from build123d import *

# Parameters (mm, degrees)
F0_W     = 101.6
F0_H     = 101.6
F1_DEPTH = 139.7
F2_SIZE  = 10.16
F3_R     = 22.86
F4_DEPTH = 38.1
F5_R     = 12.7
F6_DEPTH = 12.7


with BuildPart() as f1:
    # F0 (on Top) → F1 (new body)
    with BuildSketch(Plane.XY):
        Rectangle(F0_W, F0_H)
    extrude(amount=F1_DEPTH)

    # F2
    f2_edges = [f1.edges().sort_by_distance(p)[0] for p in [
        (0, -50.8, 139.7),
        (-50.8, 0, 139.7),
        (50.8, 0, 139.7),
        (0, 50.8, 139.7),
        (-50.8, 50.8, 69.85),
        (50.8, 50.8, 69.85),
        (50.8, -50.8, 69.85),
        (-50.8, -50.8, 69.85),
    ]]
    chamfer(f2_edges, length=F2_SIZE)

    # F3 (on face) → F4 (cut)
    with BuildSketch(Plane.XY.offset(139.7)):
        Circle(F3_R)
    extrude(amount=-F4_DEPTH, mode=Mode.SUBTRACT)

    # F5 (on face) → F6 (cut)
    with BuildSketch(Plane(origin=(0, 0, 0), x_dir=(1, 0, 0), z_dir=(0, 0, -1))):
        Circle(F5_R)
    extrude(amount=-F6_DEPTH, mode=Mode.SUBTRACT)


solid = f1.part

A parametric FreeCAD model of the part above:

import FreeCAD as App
import Part
import Sketcher
from FreeCAD import Vector
Q = App.Units.Quantity


def edges_at(feature, points):
    """Names of the edges that pass closest to the given points."""
    edges = feature.Shape.Edges
    near = lambda p: min(range(len(edges)), key=lambda i: edges[i].distToShape(Part.Vertex(*p))[0])
    return sorted({f"Edge{near(p) + 1}" for p in points})


def add_polygon(sketch, points):
    """Adds a closed chain of lines whose ends are joined by coincident constraints."""
    first, n = sketch.GeometryCount, len(points)
    for a, b in zip(points, points[1:] + points[:1]):
        sketch.addGeometry(Part.LineSegment(App.Vector(*a, 0), App.Vector(*b, 0)), False)
    for i in range(n):
        sketch.addConstraint(Sketcher.Constraint("Coincident", first + i, 2, first + (i + 1) % n, 1))

doc = App.newDocument("Part")
body = doc.addObject("PartDesign::Body", "Body")

sketch1 = body.newObject("Sketcher::SketchObject", "Sketch")
sketch1.AttachmentSupport = (doc.getObject("XY_Plane"), [""])
sketch1.MapMode = "FlatFace"
add_polygon(sketch1, [(-51, 51), (-51, -51), (51, -51), (51, 51)])
sketch1.addConstraint(Sketcher.Constraint("Vertical", 0))
sketch1.addConstraint(Sketcher.Constraint("Horizontal", 1))
sketch1.addConstraint(Sketcher.Constraint("Vertical", 2))
sketch1.addConstraint(Sketcher.Constraint("Horizontal", 3))
sketch1.addConstraint(Sketcher.Constraint("Symmetric", 0, 2, 2, 2, -1, 1))
sketch1.addConstraint(Sketcher.Constraint("Equal", 3, 0))
sketch1.addConstraint(Sketcher.Constraint("DistanceX", 1, 1, 1, 2, Q("4 in")))
pad1 = body.newObject("PartDesign::Pad", "Pad")
pad1.Profile = sketch1
pad1.Length = Q("5.5 in")
doc.recompute()

chamfer = body.newObject("PartDesign::Chamfer", "Chamfer")
chamfer.Base = (pad1, edges_at(pad1, [
    (0, -50.8, 139.7),
    (-50.8, 0, 139.7),
    (50.8, 0, 139.7),
    (0, 50.8, 139.7),
    (-50.8, 50.8, 69.85),
    (50.8, 50.8, 69.85),
    (50.8, -50.8, 69.85),
    (-50.8, -50.8, 69.85),
]))
chamfer.Size = Q("0.4 in")

sketch2 = body.newObject("Sketcher::SketchObject", "Sketch001")
sketch2.AttachmentSupport = (doc.getObject("XY_Plane"), [""])
sketch2.MapMode = "FlatFace"
sketch2.AttachmentOffset = App.Placement(Vector(0, 0, 5.5 * 25.4), App.Rotation())
sketch2.addGeometry(Part.Circle(Vector(0, 0, 0), Vector(0, 0, 1), 23), False)
sketch2.addConstraint(Sketcher.Constraint("Coincident", 0, 3, -1, 1))
sketch2.addConstraint(Sketcher.Constraint("Diameter", 0, Q("1.8 in")))
pocket1 = body.newObject("PartDesign::Pocket", "Pocket")
pocket1.Profile = sketch2
pocket1.Length = Q("1.5 in")

sketch3 = body.newObject("Sketcher::SketchObject", "Sketch002")
sketch3.AttachmentSupport = (doc.getObject("XY_Plane"), [""])
sketch3.MapMode = "FlatFace"
sketch3.addGeometry(Part.Circle(Vector(0, 0, 0), Vector(0, 0, 1), 13), False)
sketch3.addConstraint(Sketcher.Constraint("Coincident", 0, 3, -1, 1))
sketch3.addConstraint(Sketcher.Constraint("Diameter", 0, Q("1 in")))
pocket2 = body.newObject("PartDesign::Pocket", "Pocket001")
pocket2.Profile = sketch3
pocket2.Length = Q("0.5 in")
pocket2.Reversed = True

doc.recompute()
